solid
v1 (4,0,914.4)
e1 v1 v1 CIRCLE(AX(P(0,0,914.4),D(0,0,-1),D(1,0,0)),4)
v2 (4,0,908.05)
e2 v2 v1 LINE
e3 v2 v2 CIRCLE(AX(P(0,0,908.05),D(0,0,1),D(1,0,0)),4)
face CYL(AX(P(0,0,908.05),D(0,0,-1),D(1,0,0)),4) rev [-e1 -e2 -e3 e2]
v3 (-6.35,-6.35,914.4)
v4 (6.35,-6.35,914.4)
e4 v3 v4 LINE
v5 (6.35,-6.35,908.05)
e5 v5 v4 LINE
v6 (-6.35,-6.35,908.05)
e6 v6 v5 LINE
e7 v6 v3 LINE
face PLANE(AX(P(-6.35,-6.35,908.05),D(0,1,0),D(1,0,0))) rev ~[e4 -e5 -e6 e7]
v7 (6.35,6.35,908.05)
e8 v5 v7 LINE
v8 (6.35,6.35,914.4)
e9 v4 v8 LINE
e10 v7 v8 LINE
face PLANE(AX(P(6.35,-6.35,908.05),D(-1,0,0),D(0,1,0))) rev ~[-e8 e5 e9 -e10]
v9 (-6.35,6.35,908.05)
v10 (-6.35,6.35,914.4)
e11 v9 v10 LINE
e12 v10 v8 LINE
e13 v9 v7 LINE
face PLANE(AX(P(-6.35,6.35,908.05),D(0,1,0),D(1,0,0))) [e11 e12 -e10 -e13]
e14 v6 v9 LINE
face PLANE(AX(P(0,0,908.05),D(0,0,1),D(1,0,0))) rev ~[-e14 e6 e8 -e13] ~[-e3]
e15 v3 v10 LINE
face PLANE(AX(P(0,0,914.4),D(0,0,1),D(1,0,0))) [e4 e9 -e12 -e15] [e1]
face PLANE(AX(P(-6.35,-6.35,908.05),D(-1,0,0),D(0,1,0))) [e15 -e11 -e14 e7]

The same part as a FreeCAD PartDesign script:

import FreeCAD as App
import Part
import Sketcher
from FreeCAD import Vector
Q = App.Units.Quantity

doc = App.newDocument("Part")
body = doc.addObject("PartDesign::Body", "Body")

# Sketch on XY plane
sketch1 = body.newObject("Sketcher::SketchObject", "Sketch")
sketch1.AttachmentSupport = (doc.getObject("XY_Plane"), [""])
sketch1.MapMode = "FlatFace"
sketch1.addGeometry(Part.Circle(Vector(6.3, 6.3, 0), Vector(0, 0, 1), 4), False)
sketch1.addConstraint([
    Sketcher.Constraint("Diameter", 0, Q("8 mm")),
    Sketcher.Constraint("DistanceX", -1, 1, 0, 3, Q("6.35 mm")),
    Sketcher.Constraint("DistanceY", -1, 1, 0, 3, Q("6.35 mm")),
])
pad1 = body.newObject("PartDesign::Pad", "Pad")
pad1.Profile = sketch1
pad1.Length = 10
body2 = doc.addObject("PartDesign::Body", "Body001")

# Sketch on XY plane
sketch2 = body2.newObject("Sketcher::SketchObject", "Sketch001")
sketch2.AttachmentSupport = (doc.getObject("XY_Plane001"), [""])
sketch2.MapMode = "FlatFace"
sketch2.addGeometry([
    Part.LineSegment(Vector(0, 13, 0), Vector(0, 0, 0)),
    Part.LineSegment(Vector(0, 0, 0), Vector(13, 0, 0)),
    Part.LineSegment(Vector(13, 0, 0), Vector(13, 13, 0)),
    Part.LineSegment(Vector(13, 13, 0), Vector(0, 13, 0)),
], False)
sketch2.addConstraint([
    Sketcher.Constraint("Coincident", 0, 2, 1, 1),
    Sketcher.Constraint("Coincident", 1, 2, 2, 1),
    Sketcher.Constraint("Coincident", 2, 2, 3, 1),
    Sketcher.Constraint("Coincident", 3, 2, 0, 1),
    Sketcher.Constraint("Vertical", 0),
    Sketcher.Constraint("Horizontal", 1),
    Sketcher.Constraint("Vertical", 2),
    Sketcher.Constraint("Horizontal", 3),
    Sketcher.Constraint("Coincident", 0, 2, -1, 1),
    Sketcher.Constraint("Equal", 3, 0),
    Sketcher.Constraint("DistanceX", 1, 1, 1, 2, Q("12.7 mm")),
])
pad2 = body2.newObject("PartDesign::Pad", "Pad001")
pad2.Profile = sketch2
pad2.Length = 6.35
doc.recompute()

boolean = body2.newObject("PartDesign::Boolean", "Boolean")
boolean.Type = "Cut"
boolean.addObjects([body])
body3 = doc.addObject("PartDesign::Body", "Body002")
doc.recompute()

body2.Placement = App.Placement(Vector(-6.35, -6.35, 908.05), App.Rotation(Vector(0, 0, 1), 0))
boolean2 = body3.newObject("PartDesign::Boolean", "Boolean001")
boolean2.Type = "Fuse"
boolean2.addObjects([body2])

doc.recompute()
